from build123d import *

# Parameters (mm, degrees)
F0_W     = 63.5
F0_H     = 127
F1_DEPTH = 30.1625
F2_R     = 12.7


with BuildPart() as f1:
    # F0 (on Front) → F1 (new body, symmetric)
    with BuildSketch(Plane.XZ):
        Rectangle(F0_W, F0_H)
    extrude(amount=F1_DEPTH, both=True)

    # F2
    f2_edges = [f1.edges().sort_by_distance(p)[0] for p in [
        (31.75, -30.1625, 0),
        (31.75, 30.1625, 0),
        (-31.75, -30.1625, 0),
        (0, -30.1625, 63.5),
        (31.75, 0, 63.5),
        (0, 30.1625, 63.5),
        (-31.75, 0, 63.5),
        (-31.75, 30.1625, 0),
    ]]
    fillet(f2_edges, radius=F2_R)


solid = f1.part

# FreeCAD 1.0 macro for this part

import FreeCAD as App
import Part
import Sketcher

V = App.Vector
Q = App.Units.Quantity


def edges_at(feature, points):
    """Names of the edges that pass closest to the given points."""
    edges = feature.Shape.Edges
    near = lambda p: min(range(len(edges)), key=lambda i: edges[i].distToShape(Part.Vertex(*p))[0])
    return sorted({f"Edge{near(p) + 1}" for p in points})

doc = App.newDocument("Part")
body = doc.addObject("PartDesign::Body", "Body")

# Sketch on XZ plane
sketch1 = body.newObject("Sketcher::SketchObject", "Sketch")
sketch1.AttachmentSupport = (doc.getObject("XZ_Plane"), [""])
sketch1.MapMode = "FlatFace"
sketch1.addGeometry(Part.LineSegment(V(-32, 64, 0), V(-32, -64, 0)), False)
sketch1.addGeometry(Part.LineSegment(V(-32, -64, 0), V(32, -64, 0)), False)
sketch1.addGeometry(Part.LineSegment(V(32, -64, 0), V(32, 64, 0)), False)
sketch1.addGeometry(Part.LineSegment(V(32, 64, 0), V(-32, 64, 0)), False)
sketch1.addConstraint(Sketcher.Constraint("Coincident", 0, 2, 1, 1))
sketch1.addConstraint(Sketcher.Constraint("Coincident", 1, 2, 2, 1))
sketch1.addConstraint(Sketcher.Constraint("Coincident", 2, 2, 3, 1))
sketch1.addConstraint(Sketcher.Constraint("Coincident", 3, 2, 0, 1))
sketch1.addConstraint(Sketcher.Constraint("Vertical", 0))
sketch1.addConstraint(Sketcher.Constraint("Horizontal", 1))
sketch1.addConstraint(Sketcher.Constraint("Vertical", 2))
sketch1.addConstraint(Sketcher.Constraint("Horizontal", 3))
sketch1.addConstraint(Sketcher.Constraint("Symmetric", 0, 2, 2, 2, -1, 1))
sketch1.addConstraint(Sketcher.Constraint("DistanceY", 0, 2, 0, 1, Q("5 in")))
sketch1.addConstraint(Sketcher.Constraint("DistanceX", 1, 1, 1, 2, Q("2.5 in")))
pad1 = body.newObject("PartDesign::Pad", "Pad")
pad1.Profile = sketch1
pad1.Length = Q("2.375 in")
pad1.Midplane = True
doc.recompute()

fillet = body.newObject("PartDesign::Fillet", "Fillet")
fillet.Base = (pad1, edges_at(pad1, [
    (31.75, -30.163, 0),
    (31.75, 30.163, 0),
    (-31.75, -30.163, 0),
    (0, -30.163, 63.5),
    (31.75, 0, 63.5),
    (0, 30.163, 63.5),
    (-31.75, 0, 63.5),
    (-31.75, 30.163, 0),
]))
fillet.Radius = Q("0.5 in")

doc.recompute()
